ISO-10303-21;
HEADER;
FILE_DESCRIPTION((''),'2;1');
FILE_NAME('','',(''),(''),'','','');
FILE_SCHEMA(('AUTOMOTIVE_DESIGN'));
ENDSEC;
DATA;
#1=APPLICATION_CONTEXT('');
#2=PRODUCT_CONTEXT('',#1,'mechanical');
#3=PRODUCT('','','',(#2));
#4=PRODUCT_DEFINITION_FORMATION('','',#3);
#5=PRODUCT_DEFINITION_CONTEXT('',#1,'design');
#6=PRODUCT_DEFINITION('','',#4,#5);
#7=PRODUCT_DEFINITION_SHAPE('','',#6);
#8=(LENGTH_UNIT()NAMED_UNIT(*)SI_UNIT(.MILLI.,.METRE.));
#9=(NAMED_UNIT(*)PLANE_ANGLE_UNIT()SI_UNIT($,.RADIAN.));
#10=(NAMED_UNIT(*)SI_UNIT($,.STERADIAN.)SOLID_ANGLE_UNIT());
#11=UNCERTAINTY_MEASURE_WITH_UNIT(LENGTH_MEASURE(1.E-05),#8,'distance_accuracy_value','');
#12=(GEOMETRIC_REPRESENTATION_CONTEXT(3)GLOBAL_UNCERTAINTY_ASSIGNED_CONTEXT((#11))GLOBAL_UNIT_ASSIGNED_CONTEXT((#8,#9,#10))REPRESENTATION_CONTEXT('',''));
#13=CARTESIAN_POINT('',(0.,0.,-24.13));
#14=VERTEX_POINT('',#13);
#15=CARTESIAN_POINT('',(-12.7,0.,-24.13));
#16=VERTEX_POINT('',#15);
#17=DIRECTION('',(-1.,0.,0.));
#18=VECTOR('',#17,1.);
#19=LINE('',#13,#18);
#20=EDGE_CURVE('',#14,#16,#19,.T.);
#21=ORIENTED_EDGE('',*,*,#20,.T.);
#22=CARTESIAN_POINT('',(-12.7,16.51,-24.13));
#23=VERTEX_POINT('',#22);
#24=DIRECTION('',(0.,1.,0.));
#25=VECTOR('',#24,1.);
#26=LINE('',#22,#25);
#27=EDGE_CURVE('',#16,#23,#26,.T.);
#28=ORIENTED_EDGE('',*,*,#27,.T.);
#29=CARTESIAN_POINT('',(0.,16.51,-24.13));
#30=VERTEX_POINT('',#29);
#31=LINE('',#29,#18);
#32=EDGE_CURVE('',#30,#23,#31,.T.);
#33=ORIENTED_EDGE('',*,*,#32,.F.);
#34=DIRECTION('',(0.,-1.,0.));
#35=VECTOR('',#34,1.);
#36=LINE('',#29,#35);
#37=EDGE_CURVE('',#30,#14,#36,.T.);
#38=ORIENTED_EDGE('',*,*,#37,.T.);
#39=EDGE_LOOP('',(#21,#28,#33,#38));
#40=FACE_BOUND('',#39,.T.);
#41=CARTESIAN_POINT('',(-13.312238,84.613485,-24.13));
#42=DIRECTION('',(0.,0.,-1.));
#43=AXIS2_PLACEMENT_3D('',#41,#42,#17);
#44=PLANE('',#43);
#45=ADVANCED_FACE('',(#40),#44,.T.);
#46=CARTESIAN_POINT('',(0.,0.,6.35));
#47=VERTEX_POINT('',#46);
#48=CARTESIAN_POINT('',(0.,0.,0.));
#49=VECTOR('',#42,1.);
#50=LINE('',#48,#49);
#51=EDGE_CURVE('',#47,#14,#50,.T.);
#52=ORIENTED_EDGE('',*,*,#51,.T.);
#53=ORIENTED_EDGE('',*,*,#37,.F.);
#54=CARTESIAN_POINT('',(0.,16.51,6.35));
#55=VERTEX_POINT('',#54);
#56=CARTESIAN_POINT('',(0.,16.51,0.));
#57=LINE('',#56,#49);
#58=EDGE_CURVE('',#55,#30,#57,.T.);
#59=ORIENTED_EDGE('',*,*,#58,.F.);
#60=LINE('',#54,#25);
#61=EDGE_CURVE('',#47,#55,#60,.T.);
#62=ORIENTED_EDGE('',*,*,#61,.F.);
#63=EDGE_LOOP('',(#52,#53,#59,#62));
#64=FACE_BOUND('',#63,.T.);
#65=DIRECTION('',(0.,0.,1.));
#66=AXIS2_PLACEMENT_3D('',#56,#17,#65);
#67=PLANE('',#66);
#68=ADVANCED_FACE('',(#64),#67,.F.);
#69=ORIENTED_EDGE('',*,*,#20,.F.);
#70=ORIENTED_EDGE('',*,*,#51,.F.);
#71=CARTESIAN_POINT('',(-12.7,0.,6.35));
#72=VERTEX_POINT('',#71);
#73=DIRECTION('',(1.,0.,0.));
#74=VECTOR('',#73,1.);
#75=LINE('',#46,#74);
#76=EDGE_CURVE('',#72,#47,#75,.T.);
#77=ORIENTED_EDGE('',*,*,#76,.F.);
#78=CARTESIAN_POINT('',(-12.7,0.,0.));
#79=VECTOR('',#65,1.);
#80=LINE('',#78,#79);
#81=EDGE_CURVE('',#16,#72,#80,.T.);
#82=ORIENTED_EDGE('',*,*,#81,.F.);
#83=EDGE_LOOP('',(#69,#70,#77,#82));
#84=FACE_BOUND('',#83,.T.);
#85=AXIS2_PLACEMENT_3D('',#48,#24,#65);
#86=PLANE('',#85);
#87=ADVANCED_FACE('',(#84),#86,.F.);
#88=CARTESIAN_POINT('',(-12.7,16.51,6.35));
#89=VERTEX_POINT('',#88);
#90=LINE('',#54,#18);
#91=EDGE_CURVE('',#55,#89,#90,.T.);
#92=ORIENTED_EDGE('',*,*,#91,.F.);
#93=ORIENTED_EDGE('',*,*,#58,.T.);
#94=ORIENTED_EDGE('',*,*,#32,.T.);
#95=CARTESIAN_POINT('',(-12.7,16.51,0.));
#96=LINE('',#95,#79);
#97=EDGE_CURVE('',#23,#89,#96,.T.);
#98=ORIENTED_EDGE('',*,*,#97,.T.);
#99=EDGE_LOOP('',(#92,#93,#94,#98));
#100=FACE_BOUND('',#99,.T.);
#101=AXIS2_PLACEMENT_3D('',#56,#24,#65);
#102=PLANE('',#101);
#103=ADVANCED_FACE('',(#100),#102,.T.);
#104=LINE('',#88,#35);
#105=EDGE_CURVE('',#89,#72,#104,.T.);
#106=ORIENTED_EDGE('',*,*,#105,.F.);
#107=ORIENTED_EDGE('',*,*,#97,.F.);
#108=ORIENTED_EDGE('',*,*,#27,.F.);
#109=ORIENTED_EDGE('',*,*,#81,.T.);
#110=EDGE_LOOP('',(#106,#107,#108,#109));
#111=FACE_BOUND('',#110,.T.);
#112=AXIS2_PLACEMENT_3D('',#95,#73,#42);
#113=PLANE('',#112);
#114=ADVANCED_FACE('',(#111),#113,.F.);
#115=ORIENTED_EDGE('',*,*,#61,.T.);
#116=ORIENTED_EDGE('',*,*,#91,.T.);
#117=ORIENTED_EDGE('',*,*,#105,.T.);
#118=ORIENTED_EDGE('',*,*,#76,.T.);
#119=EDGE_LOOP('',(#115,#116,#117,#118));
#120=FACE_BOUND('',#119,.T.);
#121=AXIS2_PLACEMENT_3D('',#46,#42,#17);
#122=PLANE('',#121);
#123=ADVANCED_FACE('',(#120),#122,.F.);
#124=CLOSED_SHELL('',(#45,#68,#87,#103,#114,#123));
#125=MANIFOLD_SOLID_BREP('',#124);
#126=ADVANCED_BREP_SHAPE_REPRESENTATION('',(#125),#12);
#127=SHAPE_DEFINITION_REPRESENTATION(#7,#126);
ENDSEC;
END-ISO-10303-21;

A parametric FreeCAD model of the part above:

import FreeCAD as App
import Part
import Sketcher

V = App.Vector
Q = App.Units.Quantity

doc = App.newDocument("Part")
body = doc.addObject("PartDesign::Body", "Body")

sketch1 = body.newObject("Sketcher::SketchObject", "Sketch")
sketch1.AttachmentSupport = (doc.getObject("XZ_Plane"), [""])
sketch1.MapMode = "FlatFace"
sketch1.addGeometry([
    Part.LineSegment(V(-12.7, -25.4, 0), V(-12.7, 0, 0)),
    Part.LineSegment(V(-12.7, 0, 0), V(0, 0, 0)),
    Part.LineSegment(V(0, 0, 0), V(0, -25.4, 0)),
    Part.LineSegment(V(0, -25.4, 0), V(-12.7, -25.4, 0)),
], False)
sketch1.addConstraint([
    Sketcher.Constraint("Coincident", 0, 2, 1, 1),
    Sketcher.Constraint("Coincident", 1, 2, 2, 1),
    Sketcher.Constraint("Coincident", 2, 2, 3, 1),
    Sketcher.Constraint("Coincident", 3, 2, 0, 1),
    Sketcher.Constraint("Vertical", 0),
    Sketcher.Constraint("Horizontal", 1),
    Sketcher.Constraint("Vertical", 2),
    Sketcher.Constraint("Horizontal", 3),
    Sketcher.Constraint("Coincident", 1, 2, -1, 1),
    Sketcher.Constraint("DistanceY", 0, 1, 0, 2, Q("1 in")),
    Sketcher.Constraint("DistanceX", 1, 1, 1, 2, Q("0.5 in")),
])
pad1 = body.newObject("PartDesign::Pad", "Pad")
pad1.Profile = sketch1
pad1.Length = Q("0.65 in")
pad1.Reversed = True

sketch2 = body.newObject("Sketcher::SketchObject", "Sketch001")
sketch2.AttachmentSupport = (doc.getObject("XY_Plane"), [""])
sketch2.MapMode = "FlatFace"
sketch2.addGeometry([
    Part.LineSegment(V(-12.7, 16.51, 0), V(-12.7, 0, 0)),
    Part.LineSegment(V(-12.7, 0, 0), V(0, 0, 0)),
    Part.LineSegment(V(0, 0, 0), V(0, 16.51, 0)),
    Part.LineSegment(V(0, 16.51, 0), V(-12.7, 16.51, 0)),
], False)
sketch2.addConstraint([
    Sketcher.Constraint("Coincident", 0, 2, 1, 1),
    Sketcher.Constraint("Coincident", 1, 2, 2, 1),
    Sketcher.Constraint("Coincident", 2, 2, 3, 1),
    Sketcher.Constraint("Coincident", 3, 2, 0, 1),
    Sketcher.Constraint("Vertical", 0),
    Sketcher.Constraint("Horizontal", 1),
    Sketcher.Constraint("Vertical", 2),
    Sketcher.Constraint("Horizontal", 3),
    Sketcher.Constraint("Coincident", 1, 2, -1, 1),
    Sketcher.Constraint("DistanceX", 1, 1, 1, 2, Q("0.5 in")),
    Sketcher.Constraint("DistanceY", 0, 2, 0, 1, Q("0.65 in")),
])
pad2 = body.newObject("PartDesign::Pad", "Pad001")
pad2.Profile = sketch2
pad2.Length = Q("0.25 in")

sketch3 = body.newObject("Sketcher::SketchObject", "Sketch002")
sketch3.AttachmentSupport = (doc.getObject("XZ_Plane"), [""])
sketch3.MapMode = "FlatFace"
sketch3.AttachmentOffset = App.Placement(V(0, 0, -0.65 * 25.4), App.Rotation())
sketch3.addGeometry([
    Part.LineSegment(V(-89.832793, -24.13, 0), V(77.061258, -24.13, 0)),
    Part.LineSegment(V(77.061258, -24.13, 0), V(77.061258, -177.171111, 0)),
    Part.LineSegment(V(77.061258, -177.171111, 0), V(-89.832793, -177.171111, 0)),
    Part.LineSegment(V(-89.832793, -177.171111, 0), V(-89.832793, -24.13, 0)),
], False)
sketch3.addConstraint([
    Sketcher.Constraint("Coincident", 0, 2, 1, 1),
    Sketcher.Constraint("Coincident", 1, 2, 2, 1),
    Sketcher.Constraint("Coincident", 2, 2, 3, 1),
    Sketcher.Constraint("Coincident", 3, 2, 0, 1),
    Sketcher.Constraint("Horizontal", 0),
    Sketcher.Constraint("Vertical", 1),
    Sketcher.Constraint("Horizontal", 2),
    Sketcher.Constraint("Vertical", 3),
    Sketcher.Constraint("DistanceY", 0, 2, -1, 1, Q("0.95 in")),
    Sketcher.Constraint("DistanceX", 0, 1, 0, 2, 166.894051),
    Sketcher.Constraint("DistanceY", 1, 2, 1, 1, 153.041111),
    Sketcher.Constraint("DistanceX", -1, 1, 0, 2, 77.061258),
])
pocket1 = body.newObject("PartDesign::Pocket", "Pocket")
pocket1.Profile = sketch3
pocket1.Type = "ThroughAll"
pocket1.Midplane = True

doc.recompute()
